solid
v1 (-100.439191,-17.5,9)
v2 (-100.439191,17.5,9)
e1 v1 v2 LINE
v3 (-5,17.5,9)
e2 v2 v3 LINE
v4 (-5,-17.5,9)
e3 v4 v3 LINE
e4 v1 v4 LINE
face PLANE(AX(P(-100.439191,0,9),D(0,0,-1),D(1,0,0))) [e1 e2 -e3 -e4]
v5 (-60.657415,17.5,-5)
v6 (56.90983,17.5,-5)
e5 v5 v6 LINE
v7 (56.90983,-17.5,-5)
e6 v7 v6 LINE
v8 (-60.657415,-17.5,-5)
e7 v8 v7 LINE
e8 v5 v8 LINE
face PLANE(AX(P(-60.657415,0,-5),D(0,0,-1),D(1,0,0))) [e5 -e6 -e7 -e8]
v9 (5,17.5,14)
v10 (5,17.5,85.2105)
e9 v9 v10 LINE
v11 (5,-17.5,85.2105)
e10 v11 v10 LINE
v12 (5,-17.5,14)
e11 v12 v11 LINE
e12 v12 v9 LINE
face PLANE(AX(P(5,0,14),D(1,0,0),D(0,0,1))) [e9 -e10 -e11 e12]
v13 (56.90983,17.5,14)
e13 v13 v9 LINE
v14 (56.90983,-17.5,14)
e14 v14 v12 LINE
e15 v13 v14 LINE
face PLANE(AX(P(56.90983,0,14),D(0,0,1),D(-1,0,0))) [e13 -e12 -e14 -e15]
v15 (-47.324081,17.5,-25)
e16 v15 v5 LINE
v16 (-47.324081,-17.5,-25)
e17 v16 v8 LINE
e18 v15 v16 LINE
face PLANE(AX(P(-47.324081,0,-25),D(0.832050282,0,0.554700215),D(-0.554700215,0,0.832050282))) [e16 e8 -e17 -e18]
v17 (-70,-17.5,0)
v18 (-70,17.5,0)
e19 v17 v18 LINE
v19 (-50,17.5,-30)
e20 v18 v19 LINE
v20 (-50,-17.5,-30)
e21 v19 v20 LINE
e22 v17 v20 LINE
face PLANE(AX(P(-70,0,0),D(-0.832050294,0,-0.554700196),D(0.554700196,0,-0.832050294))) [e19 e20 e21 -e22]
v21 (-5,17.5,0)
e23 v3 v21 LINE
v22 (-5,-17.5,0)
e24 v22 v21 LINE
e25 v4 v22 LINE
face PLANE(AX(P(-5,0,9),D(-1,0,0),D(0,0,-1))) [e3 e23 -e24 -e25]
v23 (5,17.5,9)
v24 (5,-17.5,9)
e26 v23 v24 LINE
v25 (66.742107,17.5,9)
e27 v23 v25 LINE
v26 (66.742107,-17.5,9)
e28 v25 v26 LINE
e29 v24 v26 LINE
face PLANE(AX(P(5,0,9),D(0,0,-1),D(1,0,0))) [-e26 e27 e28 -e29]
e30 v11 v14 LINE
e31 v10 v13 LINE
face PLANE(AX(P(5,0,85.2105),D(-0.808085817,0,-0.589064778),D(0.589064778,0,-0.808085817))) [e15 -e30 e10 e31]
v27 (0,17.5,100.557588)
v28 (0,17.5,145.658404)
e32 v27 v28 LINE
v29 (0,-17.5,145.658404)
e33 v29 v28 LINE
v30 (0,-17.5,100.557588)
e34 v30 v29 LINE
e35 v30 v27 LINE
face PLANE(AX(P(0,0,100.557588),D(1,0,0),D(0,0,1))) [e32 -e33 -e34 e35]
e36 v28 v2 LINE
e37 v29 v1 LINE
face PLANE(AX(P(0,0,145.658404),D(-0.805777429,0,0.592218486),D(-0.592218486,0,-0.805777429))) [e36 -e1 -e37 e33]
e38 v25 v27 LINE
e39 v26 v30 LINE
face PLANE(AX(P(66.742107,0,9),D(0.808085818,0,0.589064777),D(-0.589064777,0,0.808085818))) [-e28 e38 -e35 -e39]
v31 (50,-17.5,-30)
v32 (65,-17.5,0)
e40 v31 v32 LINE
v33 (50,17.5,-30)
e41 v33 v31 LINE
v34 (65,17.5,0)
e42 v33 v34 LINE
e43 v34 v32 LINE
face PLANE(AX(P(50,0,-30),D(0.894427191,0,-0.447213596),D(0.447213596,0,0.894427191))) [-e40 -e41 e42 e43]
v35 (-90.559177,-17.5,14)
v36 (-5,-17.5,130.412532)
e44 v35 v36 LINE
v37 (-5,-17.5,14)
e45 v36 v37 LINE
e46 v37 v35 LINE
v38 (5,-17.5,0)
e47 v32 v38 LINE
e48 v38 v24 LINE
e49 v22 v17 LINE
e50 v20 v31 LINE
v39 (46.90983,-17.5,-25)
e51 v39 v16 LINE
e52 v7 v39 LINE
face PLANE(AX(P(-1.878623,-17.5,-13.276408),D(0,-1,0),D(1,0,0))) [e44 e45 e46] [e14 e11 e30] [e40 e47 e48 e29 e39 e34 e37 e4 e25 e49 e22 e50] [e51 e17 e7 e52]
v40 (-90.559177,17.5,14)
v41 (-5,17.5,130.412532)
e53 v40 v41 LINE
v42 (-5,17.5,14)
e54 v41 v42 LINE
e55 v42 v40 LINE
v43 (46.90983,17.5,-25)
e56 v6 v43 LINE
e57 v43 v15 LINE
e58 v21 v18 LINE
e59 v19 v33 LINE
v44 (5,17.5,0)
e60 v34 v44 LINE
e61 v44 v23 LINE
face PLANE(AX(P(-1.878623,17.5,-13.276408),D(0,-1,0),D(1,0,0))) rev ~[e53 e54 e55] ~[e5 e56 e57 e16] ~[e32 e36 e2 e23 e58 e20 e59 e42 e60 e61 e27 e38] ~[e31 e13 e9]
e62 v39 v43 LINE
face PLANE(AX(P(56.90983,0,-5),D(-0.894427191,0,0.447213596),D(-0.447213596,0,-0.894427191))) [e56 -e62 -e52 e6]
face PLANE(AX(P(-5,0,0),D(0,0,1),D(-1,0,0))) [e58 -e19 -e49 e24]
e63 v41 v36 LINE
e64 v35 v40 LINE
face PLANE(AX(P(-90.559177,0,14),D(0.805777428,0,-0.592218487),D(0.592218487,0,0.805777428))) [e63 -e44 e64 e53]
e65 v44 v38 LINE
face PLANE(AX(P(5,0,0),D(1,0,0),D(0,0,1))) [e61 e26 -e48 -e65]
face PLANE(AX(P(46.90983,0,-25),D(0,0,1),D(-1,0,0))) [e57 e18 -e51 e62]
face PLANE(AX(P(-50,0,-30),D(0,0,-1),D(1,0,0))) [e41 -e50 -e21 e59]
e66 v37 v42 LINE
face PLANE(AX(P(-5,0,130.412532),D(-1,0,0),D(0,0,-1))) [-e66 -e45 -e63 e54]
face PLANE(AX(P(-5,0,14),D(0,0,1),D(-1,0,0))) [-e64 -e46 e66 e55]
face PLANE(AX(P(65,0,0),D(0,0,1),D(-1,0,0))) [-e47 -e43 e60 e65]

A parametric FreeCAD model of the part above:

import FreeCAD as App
import Part
import Sketcher

V = App.Vector
Q = App.Units.Quantity


def add_polygon(sketch, points):
    """Adds a closed chain of lines whose ends are joined by coincident constraints."""
    first, n = sketch.GeometryCount, len(points)
    for a, b in zip(points, points[1:] + points[:1]):
        sketch.addGeometry(Part.LineSegment(App.Vector(*a, 0), App.Vector(*b, 0)), False)
    for i in range(n):
        sketch.addConstraint(Sketcher.Constraint("Coincident", first + i, 2, first + (i + 1) % n, 1))

doc = App.newDocument("Part")
params = doc.addObject("Spreadsheet::Sheet", "Params")
for row, (alias, value) in enumerate([
    ("sketch1_width", "100 mm"),
    ("sketch1_width2", "60 mm"),
    ("sketch1_width3", "65 mm"),
    ("sketch1_height", "9 mm"),
    ("pad1_length", "35 mm"),
], start=1):
    params.set(f"A{row}", alias)
    params.set(f"B{row}", "=" + value)
    params.setAlias(f"B{row}", alias)

body = doc.addObject("PartDesign::Body", "Body")

sketch1 = doc.addObject("Sketcher::SketchObject", "Sketch")
body.addObject(sketch1)
sketch1.AttachmentSupport = (doc.XZ_Plane, [""])
sketch1.MapMode = "FlatFace"
add_polygon(sketch1, [(-70, 0), (-50, -30), (50, -30), (65, 0), (5, 0), (5, 9), (66.742107, 9), (0, 100.557588), (0, 145.658404), (-100.439191, 9), (-5, 9), (-5, 0)])
add_polygon(sketch1, [(46.90983, -25), (-47.324081, -25), (-60.657415, -5), (56.90983, -5)])
add_polygon(sketch1, [(5, 85.2105), (56.90983, 14), (5, 14)])
add_polygon(sketch1, [(-90.559177, 14), (-5, 130.412532), (-5, 14)])
sketch1.addConstraint([
    Sketcher.Constraint("Horizontal", 1),
    Sketcher.Constraint("Horizontal", 3),
    Sketcher.Constraint("Vertical", 4),
    Sketcher.Constraint("Horizontal", 5),
    Sketcher.Constraint("Vertical", 7),
    Sketcher.Constraint("Horizontal", 9),
    Sketcher.Constraint("Vertical", 10),
    Sketcher.Constraint("Horizontal", 11),
    Sketcher.Constraint("Horizontal", 12),
    Sketcher.Constraint("Horizontal", 14),
    Sketcher.Constraint("Horizontal", 17),
    Sketcher.Constraint("Vertical", 18),
    Sketcher.Constraint("Vertical", 20),
    Sketcher.Constraint("Horizontal", 21),
    Sketcher.Constraint("Symmetric", 3, 2, 10, 2, -1, 1),
    Sketcher.Constraint("Symmetric", 17, 2, 20, 2, -2),
    Sketcher.Constraint("PointOnObject", 2, 2, -1),
    Sketcher.Constraint("PointOnObject", 6, 2, -2),
    Sketcher.Constraint("Parallel", 0, 13),
    Sketcher.Constraint("Parallel", 2, 15),
    Sketcher.Constraint("Parallel", 6, 16),
    Sketcher.Constraint("Parallel", 8, 19),
    Sketcher.Constraint("Horizontal", 5, 2, 8, 2),
    Sketcher.Constraint("Vertical", 14, 2, 16, 2),
    Sketcher.Constraint("Vertical", 4, 2, 17, 2),
    Sketcher.Constraint("DistanceX", 1, 1, 1, 2, Q("100 mm")),
    Sketcher.Constraint("DistanceX", 3, 2, 3, 1, Q("60 mm")),
    Sketcher.Constraint("DistanceX", 11, 2, 11, 1, Q("65 mm")),
    Sketcher.Constraint("DistanceY", 4, 1, 4, 2, Q("9 mm")),
    Sketcher.Constraint("DistanceX", 0, 2, -1, 1, Q("50 mm")),
    Sketcher.Constraint("DistanceY", 0, 2, -1, 1, Q("30 mm")),
    Sketcher.Constraint("DistanceX", -1, 1, 2, 2, Q("65 mm")),
    Sketcher.Constraint("DistanceY", 12, 2, -1, 1, Q("25 mm")),
    Sketcher.Constraint("DistanceY", 13, 2, -1, 1, Q("5 mm")),
    Sketcher.Constraint("DistanceY", -1, 1, 16, 2, Q("14 mm")),
    Sketcher.Constraint("DistanceY", 18, 1, 18, 2, Q("71.2105 mm")),
    Sketcher.Constraint("DistanceX", 9, 1, 9, 2, Q("95.439191 mm")),
    Sketcher.Constraint("DistanceX", 12, 2, 12, 1, Q("94.233911 mm")),
    Sketcher.Constraint("DistanceX", 17, 2, 17, 1, Q("51.90983 mm")),
    Sketcher.Constraint("DistanceY", 20, 2, 20, 1, Q("116.412532 mm")),
    Sketcher.Constraint("DistanceX", 5, 1, 5, 2, Q("61.742107 mm")),
    Sketcher.Constraint("DistanceX", 21, 2, 21, 1, Q("85.559177 mm")),
])
sketch1.setExpression("Constraints[47]", "Params.sketch1_width")
sketch1.setExpression("Constraints[48]", "Params.sketch1_width2")
sketch1.setExpression("Constraints[49]", "Params.sketch1_width3")
sketch1.setExpression("Constraints[50]", "Params.sketch1_height")
pad1 = doc.addObject("PartDesign::Pad", "Pad")
body.addObject(pad1)
pad1.Profile = sketch1
pad1.setExpression("Length", "Params.pad1_length")
pad1.Midplane = True

doc.recompute()
